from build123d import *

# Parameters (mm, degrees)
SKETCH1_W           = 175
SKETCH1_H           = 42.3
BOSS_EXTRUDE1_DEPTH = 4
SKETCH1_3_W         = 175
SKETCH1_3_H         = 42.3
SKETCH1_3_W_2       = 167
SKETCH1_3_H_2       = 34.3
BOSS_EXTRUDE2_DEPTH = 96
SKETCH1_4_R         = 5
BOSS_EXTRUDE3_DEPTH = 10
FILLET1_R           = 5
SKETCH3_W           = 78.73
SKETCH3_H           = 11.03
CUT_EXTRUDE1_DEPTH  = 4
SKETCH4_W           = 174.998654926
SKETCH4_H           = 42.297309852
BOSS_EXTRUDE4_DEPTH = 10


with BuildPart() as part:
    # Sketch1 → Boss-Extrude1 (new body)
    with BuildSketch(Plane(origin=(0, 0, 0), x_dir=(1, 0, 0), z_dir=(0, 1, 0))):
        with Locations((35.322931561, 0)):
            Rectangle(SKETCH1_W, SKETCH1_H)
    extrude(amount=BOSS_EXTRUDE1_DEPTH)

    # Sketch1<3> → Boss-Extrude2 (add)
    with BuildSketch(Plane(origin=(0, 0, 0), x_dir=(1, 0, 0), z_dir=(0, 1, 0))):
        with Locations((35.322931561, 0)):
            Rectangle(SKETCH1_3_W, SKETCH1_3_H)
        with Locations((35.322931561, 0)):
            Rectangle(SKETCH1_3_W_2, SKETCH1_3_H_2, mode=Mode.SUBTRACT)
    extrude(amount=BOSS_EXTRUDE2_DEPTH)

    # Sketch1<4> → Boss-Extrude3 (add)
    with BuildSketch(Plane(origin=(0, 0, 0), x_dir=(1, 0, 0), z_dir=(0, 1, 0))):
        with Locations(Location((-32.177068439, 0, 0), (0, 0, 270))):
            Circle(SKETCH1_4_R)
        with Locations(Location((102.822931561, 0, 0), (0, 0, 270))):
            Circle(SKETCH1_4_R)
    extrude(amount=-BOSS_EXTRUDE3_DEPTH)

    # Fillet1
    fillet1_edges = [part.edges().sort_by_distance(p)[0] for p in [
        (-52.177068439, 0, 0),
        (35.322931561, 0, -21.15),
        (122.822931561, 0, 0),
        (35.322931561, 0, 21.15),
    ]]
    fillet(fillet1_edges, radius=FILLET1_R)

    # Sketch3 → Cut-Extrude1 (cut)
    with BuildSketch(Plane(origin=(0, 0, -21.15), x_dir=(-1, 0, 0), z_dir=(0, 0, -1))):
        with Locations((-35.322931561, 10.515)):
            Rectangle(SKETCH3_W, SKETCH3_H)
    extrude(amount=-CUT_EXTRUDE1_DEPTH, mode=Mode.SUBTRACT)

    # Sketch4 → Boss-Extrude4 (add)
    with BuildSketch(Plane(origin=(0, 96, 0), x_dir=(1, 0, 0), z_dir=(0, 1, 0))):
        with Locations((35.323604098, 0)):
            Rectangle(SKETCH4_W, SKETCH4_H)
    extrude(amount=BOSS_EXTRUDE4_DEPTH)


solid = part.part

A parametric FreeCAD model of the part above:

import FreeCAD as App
import Part
import Sketcher
from FreeCAD import Vector
Q = App.Units.Quantity


def edges_at(feature, points):
    """Names of the edges that pass closest to the given points."""
    edges = feature.Shape.Edges
    near = lambda p: min(range(len(edges)), key=lambda i: edges[i].distToShape(Part.Vertex(*p))[0])
    return sorted({f"Edge{near(p) + 1}" for p in points})


def add_polygon(sketch, points):
    """Adds a closed chain of lines whose ends are joined by coincident constraints."""
    first, n = sketch.GeometryCount, len(points)
    for a, b in zip(points, points[1:] + points[:1]):
        sketch.addGeometry(Part.LineSegment(App.Vector(*a, 0), App.Vector(*b, 0)), False)
    for i in range(n):
        sketch.addConstraint(Sketcher.Constraint("Coincident", first + i, 2, first + (i + 1) % n, 1))

doc = App.newDocument("Part")
body = doc.addObject("PartDesign::Body", "Body")

sketch1 = body.newObject("Sketcher::SketchObject", "Sketch")
sketch1.AttachmentSupport = (doc.getObject("XZ_Plane"), [""])
sketch1.MapMode = "FlatFace"
add_polygon(sketch1, [(-52, -21), (-52, 21), (123, 21), (123, -21)])
sketch1.addConstraint([
    Sketcher.Constraint("Vertical", 0),
    Sketcher.Constraint("Horizontal", 1),
    Sketcher.Constraint("Vertical", 2),
    Sketcher.Constraint("Horizontal", 3),
    Sketcher.Constraint("DistanceX", 1, 1, 1, 2, Q("175 mm")),
    Sketcher.Constraint("DistanceY", 0, 1, 0, 2, Q("42.3 mm")),
    Sketcher.Constraint("DistanceY", -1, 1, 0, 2, Q("21.15 mm")),
    Sketcher.Constraint("DistanceX", 0, 2, -1, 1, Q("52.177068 mm")),
])
pad1 = body.newObject("PartDesign::Pad", "Pad")
pad1.Profile = sketch1
pad1.Length = 4
pad1.Reversed = True

sketch2 = body.newObject("Sketcher::SketchObject", "Sketch001")
sketch2.AttachmentSupport = (doc.getObject("XZ_Plane"), [""])
sketch2.MapMode = "FlatFace"
add_polygon(sketch2, [(-52, -21), (-52, 21), (123, 21), (123, -21)])
add_polygon(sketch2, [(119, 17), (-48, 17), (-48, -17), (119, -17)])
sketch2.addConstraint([
    Sketcher.Constraint("Vertical", 0),
    Sketcher.Constraint("Horizontal", 1),
    Sketcher.Constraint("Vertical", 2),
    Sketcher.Constraint("Horizontal", 3),
    Sketcher.Constraint("Horizontal", 4),
    Sketcher.Constraint("Vertical", 5),
    Sketcher.Constraint("Horizontal", 6),
    Sketcher.Constraint("Vertical", 7),
    Sketcher.Constraint("DistanceX", 1, 1, 1, 2, Q("175 mm")),
    Sketcher.Constraint("DistanceX", 4, 2, 4, 1, Q("167 mm")),
    Sketcher.Constraint("DistanceY", 0, 1, 0, 2, Q("42.3 mm")),
    Sketcher.Constraint("DistanceY", 5, 2, 5, 1, Q("34.3 mm")),
    Sketcher.Constraint("DistanceX", 0, 2, 4, 2, Q("4 mm")),
    Sketcher.Constraint("DistanceY", 4, 2, 0, 2, Q("4 mm")),
    Sketcher.Constraint("DistanceY", -1, 1, 0, 2, Q("21.15 mm")),
    Sketcher.Constraint("DistanceX", 0, 2, -1, 1, Q("52.177068 mm")),
])
pad2 = body.newObject("PartDesign::Pad", "Pad001")
pad2.Profile = sketch2
pad2.Length = 96
pad2.Reversed = True

sketch3 = body.newObject("Sketcher::SketchObject", "Sketch002")
sketch3.AttachmentSupport = (doc.getObject("XZ_Plane"), [""])
sketch3.MapMode = "FlatFace"
sketch3.addGeometry([
    Part.Circle(Vector(-32, 0, 0), Vector(0, 0, 1), 5),
    Part.Circle(Vector(103, 0, 0), Vector(0, 0, 1), 5),
], False)
sketch3.addConstraint([
    Sketcher.Constraint("Equal", 0, 1),
    Sketcher.Constraint("PointOnObject", 0, 3, -1),
    Sketcher.Constraint("PointOnObject", 1, 3, -1),
    Sketcher.Constraint("Diameter", 0, Q("10 mm")),
    Sketcher.Constraint("DistanceX", 0, 3, 1, 3, Q("135 mm")),
    Sketcher.Constraint("DistanceX", 0, 3, -1, 1, Q("32.177068 mm")),
])
pad3 = body.newObject("PartDesign::Pad", "Pad002")
pad3.Profile = sketch3
pad3.Length = 10
doc.recompute()

fillet = body.newObject("PartDesign::Fillet", "Fillet")
fillet.Base = (pad3, edges_at(pad3, [
    (-52.177, 0, 0),
    (35.323, 0, -21.15),
    (122.823, 0, 0),
    (35.323, 0, 21.15),
]))
fillet.Radius = 5

sketch4 = body.newObject("Sketcher::SketchObject", "Sketch003")
sketch4.AttachmentSupport = (doc.getObject("XY_Plane"), [""])
sketch4.MapMode = "FlatFace"
sketch4.AttachmentOffset = App.Placement(Vector(0, 0, -21.15), App.Rotation())
add_polygon(sketch4, [(75, 16), (75, 5), (-4, 5), (-4, 16)])
sketch4.addConstraint([
    Sketcher.Constraint("Vertical", 0),
    Sketcher.Constraint("Horizontal", 1),
    Sketcher.Constraint("Vertical", 2),
    Sketcher.Constraint("Horizontal", 3),
    Sketcher.Constraint("DistanceY", -1, 1, 0, 2, Q("5 mm")),
    Sketcher.Constraint("DistanceX", 1, 2, 1, 1, Q("78.73 mm")),
    Sketcher.Constraint("DistanceY", 0, 2, 0, 1, Q("11.03 mm")),
    Sketcher.Constraint("DistanceX", -1, 1, 0, 2, Q("74.687932 mm")),
])
pocket1 = body.newObject("PartDesign::Pocket", "Pocket")
pocket1.Profile = sketch4
pocket1.Length = 4
pocket1.Reversed = True

sketch5 = body.newObject("Sketcher::SketchObject", "Sketch004")
sketch5.AttachmentSupport = (doc.getObject("XZ_Plane"), [""])
sketch5.MapMode = "FlatFace"
sketch5.AttachmentOffset = App.Placement(Vector(0, 0, -96), App.Rotation())
add_polygon(sketch5, [(-52, -21), (-52, 21), (123, 21), (123, -21)])
sketch5.addConstraint([
    Sketcher.Constraint("Vertical", 0),
    Sketcher.Constraint("Horizontal", 1),
    Sketcher.Constraint("Vertical", 2),
    Sketcher.Constraint("Horizontal", 3),
    Sketcher.Constraint("DistanceY", 0, 1, 0, 2, Q("42.29731 mm")),
    Sketcher.Constraint("DistanceX", 1, 1, 1, 2, Q("174.998655 mm")),
    Sketcher.Constraint("DistanceX", -1, 1, 1, 2, Q("122.822932 mm")),
    Sketcher.Constraint("DistanceY", -1, 1, 0, 2, Q("21.148655 mm")),
])
pad4 = body.newObject("PartDesign::Pad", "Pad003")
pad4.Profile = sketch5
pad4.Length = 10
pad4.Reversed = True

doc.recompute()
